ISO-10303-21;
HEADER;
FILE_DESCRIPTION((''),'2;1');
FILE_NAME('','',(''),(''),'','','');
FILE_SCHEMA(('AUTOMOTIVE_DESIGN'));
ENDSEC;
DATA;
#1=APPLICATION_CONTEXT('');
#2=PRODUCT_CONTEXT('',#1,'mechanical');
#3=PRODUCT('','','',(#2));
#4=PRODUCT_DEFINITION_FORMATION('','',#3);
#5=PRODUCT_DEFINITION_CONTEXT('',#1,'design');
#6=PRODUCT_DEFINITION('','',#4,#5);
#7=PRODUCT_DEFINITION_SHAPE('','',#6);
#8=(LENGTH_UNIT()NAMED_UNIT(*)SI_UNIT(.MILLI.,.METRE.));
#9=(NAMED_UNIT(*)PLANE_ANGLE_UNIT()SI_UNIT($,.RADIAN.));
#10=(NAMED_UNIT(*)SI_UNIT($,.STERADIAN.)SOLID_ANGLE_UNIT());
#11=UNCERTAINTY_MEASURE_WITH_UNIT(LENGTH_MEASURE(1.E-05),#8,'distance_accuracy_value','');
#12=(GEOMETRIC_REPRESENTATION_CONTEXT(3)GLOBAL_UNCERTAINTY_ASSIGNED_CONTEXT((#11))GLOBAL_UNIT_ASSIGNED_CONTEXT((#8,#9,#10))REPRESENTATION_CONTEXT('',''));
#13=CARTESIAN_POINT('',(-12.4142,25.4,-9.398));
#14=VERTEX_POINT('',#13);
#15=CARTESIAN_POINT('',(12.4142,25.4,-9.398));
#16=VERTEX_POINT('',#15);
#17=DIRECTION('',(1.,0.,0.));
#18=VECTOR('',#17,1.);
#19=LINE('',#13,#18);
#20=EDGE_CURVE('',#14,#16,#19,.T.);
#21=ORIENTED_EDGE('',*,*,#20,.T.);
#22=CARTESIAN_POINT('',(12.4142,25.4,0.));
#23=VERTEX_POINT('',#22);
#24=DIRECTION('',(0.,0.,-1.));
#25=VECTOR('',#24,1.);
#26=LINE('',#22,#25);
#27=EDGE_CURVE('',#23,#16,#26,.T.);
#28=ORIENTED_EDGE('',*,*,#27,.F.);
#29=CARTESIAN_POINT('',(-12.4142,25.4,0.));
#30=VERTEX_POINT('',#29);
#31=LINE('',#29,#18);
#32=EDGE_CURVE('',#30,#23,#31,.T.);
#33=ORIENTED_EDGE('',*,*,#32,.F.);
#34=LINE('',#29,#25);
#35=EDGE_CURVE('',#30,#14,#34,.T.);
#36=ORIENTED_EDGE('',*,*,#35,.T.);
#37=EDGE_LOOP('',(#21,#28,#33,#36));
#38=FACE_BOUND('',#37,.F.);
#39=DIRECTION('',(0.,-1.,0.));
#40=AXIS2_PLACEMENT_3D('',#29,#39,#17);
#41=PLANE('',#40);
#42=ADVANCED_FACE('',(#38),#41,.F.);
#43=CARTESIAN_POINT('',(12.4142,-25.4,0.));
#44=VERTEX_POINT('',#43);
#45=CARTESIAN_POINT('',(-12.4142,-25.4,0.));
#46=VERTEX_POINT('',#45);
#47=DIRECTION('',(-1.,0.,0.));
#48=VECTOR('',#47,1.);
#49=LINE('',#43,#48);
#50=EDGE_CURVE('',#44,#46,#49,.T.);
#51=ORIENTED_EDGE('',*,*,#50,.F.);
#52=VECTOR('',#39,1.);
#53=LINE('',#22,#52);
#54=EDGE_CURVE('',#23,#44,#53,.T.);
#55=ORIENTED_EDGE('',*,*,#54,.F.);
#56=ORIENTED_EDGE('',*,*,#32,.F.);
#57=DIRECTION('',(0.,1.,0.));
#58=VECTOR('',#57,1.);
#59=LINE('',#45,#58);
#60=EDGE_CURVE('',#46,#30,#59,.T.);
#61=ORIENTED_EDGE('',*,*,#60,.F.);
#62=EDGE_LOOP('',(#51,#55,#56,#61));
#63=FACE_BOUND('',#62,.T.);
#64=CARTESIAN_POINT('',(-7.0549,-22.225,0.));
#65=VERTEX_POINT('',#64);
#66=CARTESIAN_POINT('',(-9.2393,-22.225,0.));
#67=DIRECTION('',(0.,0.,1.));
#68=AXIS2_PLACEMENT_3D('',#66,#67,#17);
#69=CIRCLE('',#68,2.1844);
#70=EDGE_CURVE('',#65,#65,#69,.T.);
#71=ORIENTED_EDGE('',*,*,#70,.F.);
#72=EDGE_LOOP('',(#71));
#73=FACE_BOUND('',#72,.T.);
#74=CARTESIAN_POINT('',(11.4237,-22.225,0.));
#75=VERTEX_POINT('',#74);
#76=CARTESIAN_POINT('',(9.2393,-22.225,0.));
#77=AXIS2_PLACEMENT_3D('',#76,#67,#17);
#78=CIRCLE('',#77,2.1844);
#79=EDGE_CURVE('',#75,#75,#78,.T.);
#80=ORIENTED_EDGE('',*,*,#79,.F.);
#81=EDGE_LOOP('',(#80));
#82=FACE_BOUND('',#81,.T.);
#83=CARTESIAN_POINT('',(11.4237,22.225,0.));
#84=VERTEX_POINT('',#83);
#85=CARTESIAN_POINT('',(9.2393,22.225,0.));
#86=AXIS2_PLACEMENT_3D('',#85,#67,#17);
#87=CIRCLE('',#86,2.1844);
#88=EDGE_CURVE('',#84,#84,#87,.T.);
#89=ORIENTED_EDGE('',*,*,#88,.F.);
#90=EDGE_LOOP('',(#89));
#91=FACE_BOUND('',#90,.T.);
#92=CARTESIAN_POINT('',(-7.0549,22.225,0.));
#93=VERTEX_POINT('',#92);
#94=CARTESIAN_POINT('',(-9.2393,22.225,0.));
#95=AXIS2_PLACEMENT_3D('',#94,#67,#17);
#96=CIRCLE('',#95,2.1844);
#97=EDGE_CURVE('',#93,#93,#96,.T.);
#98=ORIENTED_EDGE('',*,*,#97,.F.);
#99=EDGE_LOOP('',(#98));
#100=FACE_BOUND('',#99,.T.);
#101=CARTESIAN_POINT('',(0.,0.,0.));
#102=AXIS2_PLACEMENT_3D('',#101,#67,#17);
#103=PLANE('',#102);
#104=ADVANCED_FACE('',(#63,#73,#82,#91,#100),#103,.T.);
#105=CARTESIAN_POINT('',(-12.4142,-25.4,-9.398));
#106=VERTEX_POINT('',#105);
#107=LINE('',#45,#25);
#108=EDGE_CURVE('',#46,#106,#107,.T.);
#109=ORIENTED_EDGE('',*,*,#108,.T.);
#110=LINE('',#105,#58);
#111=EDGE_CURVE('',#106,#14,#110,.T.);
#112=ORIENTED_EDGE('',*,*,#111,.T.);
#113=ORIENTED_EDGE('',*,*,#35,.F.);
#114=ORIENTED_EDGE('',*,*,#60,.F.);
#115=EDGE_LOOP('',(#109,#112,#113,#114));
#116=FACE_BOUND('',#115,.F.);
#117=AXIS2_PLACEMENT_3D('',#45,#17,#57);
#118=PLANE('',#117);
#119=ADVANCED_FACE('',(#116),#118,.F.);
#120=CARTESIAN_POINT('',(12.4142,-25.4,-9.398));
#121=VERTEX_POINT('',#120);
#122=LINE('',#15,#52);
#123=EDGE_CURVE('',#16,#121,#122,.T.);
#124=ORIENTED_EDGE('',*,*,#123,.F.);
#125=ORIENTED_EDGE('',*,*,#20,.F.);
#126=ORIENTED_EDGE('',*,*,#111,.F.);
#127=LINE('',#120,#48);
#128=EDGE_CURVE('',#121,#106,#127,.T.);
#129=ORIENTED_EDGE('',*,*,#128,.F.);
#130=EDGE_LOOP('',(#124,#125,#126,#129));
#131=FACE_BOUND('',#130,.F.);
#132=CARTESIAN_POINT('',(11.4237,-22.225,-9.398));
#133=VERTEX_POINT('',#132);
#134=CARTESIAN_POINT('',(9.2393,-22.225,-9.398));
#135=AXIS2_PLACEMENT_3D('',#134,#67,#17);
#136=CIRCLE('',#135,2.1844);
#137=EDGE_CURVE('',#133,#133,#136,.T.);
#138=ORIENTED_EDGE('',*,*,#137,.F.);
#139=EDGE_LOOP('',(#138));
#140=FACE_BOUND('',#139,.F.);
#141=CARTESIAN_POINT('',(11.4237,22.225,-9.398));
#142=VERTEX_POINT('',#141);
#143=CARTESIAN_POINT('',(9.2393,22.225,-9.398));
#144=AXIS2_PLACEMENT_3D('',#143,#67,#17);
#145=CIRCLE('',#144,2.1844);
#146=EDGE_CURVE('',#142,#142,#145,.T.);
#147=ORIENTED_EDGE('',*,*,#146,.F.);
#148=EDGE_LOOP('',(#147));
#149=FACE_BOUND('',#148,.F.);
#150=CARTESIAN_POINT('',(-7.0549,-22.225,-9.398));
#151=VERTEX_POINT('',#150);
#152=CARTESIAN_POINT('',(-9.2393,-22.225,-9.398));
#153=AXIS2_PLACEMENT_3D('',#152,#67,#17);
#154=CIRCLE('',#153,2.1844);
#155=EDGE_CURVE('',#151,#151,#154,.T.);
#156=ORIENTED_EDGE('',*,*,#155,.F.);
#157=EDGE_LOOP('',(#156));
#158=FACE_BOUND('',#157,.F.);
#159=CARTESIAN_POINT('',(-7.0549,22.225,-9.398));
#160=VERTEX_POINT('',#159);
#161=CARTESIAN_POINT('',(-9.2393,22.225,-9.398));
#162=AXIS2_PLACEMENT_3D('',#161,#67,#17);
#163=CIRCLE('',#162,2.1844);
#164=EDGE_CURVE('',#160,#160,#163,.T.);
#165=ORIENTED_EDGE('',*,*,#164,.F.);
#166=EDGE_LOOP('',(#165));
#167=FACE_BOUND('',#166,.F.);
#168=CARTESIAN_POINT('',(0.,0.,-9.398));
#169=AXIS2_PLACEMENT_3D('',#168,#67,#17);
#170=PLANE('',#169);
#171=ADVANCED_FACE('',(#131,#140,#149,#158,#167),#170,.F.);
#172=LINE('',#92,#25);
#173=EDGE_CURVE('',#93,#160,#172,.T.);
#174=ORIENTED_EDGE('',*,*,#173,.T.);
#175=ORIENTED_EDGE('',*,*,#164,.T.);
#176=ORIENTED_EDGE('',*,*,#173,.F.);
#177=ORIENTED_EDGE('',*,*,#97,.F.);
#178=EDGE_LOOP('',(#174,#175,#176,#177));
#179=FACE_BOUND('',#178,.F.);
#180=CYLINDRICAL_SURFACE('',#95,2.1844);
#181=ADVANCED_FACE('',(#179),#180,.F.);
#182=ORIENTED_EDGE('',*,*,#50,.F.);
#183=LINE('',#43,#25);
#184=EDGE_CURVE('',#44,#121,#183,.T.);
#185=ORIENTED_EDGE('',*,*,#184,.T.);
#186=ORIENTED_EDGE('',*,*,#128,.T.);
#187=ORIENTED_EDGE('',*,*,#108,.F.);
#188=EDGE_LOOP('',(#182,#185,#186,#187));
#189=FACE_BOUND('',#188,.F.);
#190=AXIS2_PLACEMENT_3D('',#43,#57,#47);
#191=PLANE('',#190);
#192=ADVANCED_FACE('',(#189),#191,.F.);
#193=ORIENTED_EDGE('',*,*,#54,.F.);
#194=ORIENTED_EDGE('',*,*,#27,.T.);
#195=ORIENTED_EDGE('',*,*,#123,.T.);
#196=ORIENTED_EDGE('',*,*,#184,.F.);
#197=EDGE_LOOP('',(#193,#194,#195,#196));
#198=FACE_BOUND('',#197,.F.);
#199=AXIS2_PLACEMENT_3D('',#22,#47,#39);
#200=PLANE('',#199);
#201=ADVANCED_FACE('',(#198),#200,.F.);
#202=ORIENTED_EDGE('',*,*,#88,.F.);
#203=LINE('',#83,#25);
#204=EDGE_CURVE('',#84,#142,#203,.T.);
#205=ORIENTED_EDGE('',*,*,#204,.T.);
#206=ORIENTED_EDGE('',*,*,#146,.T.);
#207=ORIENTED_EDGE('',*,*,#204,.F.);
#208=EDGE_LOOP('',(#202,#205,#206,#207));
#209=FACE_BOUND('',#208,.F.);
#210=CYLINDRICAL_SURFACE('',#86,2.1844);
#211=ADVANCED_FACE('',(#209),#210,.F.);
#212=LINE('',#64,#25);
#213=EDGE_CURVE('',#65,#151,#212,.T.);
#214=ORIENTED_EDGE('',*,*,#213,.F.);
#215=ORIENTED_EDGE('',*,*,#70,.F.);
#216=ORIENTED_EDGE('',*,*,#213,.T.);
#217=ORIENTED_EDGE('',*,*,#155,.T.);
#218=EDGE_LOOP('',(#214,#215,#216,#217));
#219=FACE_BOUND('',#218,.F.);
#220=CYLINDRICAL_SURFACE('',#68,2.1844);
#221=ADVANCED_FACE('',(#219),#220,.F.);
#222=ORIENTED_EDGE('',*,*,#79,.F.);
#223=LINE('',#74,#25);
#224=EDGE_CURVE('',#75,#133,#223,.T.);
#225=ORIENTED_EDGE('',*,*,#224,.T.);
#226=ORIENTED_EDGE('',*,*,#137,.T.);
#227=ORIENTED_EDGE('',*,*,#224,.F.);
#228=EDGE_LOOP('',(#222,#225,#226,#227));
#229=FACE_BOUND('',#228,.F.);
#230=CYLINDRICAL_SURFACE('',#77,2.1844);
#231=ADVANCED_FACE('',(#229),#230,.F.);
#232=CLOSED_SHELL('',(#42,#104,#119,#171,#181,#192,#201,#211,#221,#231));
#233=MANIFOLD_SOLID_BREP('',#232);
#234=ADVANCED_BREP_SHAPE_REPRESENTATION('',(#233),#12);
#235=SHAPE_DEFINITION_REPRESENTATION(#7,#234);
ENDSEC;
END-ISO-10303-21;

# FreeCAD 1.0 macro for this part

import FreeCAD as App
import Part
import Sketcher

V = App.Vector
Q = App.Units.Quantity


def add_polygon(sketch, points):
    """Adds a closed chain of lines whose ends are joined by coincident constraints."""
    first, n = sketch.GeometryCount, len(points)
    for a, b in zip(points, points[1:] + points[:1]):
        sketch.addGeometry(Part.LineSegment(App.Vector(*a, 0), App.Vector(*b, 0)), False)
    for i in range(n):
        sketch.addConstraint(Sketcher.Constraint("Coincident", first + i, 2, first + (i + 1) % n, 1))

doc = App.newDocument("Part")
body = doc.addObject("PartDesign::Body", "Body")

# Sketch on XY plane
sketch1 = body.newObject("Sketcher::SketchObject", "Sketch")
sketch1.AttachmentSupport = (doc.getObject("XY_Plane"), [""])
sketch1.MapMode = "FlatFace"
add_polygon(sketch1, [(12.4, 25.4), (-12.4, 25.4), (-12.4, -25.4), (12.4, -25.4)])  # lines 0-3
sketch1.addGeometry(Part.Circle(V(-9.2, -22.2, 0), V(0, 0, 1), 2.2), False)  # 4
sketch1.addGeometry(Part.Circle(V(9.2, -22.2, 0), V(0, 0, 1), 2.2), False)  # 5
sketch1.addGeometry(Part.Circle(V(-9.2, 22.2, 0), V(0, 0, 1), 2.2), False)  # 6
sketch1.addGeometry(Part.Circle(V(9.2, 22.2, 0), V(0, 0, 1), 2.2), False)  # 7
sketch1.addConstraint(Sketcher.Constraint("Horizontal", 0))
sketch1.addConstraint(Sketcher.Constraint("Vertical", 1))
sketch1.addConstraint(Sketcher.Constraint("Horizontal", 2))
sketch1.addConstraint(Sketcher.Constraint("Vertical", 3))
sketch1.addConstraint(Sketcher.Constraint("Equal", 4, 5))
sketch1.addConstraint(Sketcher.Constraint("Equal", 5, 6))
sketch1.addConstraint(Sketcher.Constraint("Equal", 6, 7))
sketch1.addConstraint(Sketcher.Constraint("Symmetric", 5, 3, 6, 3, -1, 1))
sketch1.addConstraint(Sketcher.Constraint("Symmetric", 4, 3, 7, 3, -1, 1))
sketch1.addConstraint(Sketcher.Constraint("Symmetric", 0, 2, 2, 2, -1, 1))
sketch1.addConstraint(Sketcher.Constraint("Symmetric", 4, 3, 5, 3, -2))
sketch1.addConstraint(Sketcher.Constraint("DistanceY", 1, 2, 1, 1, Q("2 in")))
sketch1.addConstraint(Sketcher.Constraint("Diameter", 4, Q("0.172 in")))
sketch1.addConstraint(Sketcher.Constraint("DistanceX", 0, 2, 0, 1, Q("0.9775 in")))
sketch1.addConstraint(Sketcher.Constraint("DistanceX", 0, 2, 6, 3, Q("0.125 in")))
sketch1.addConstraint(Sketcher.Constraint("DistanceY", 6, 3, 0, 2, Q("0.125 in")))
pad1 = body.newObject("PartDesign::Pad", "Pad")
pad1.Profile = sketch1
pad1.Length = Q("0.37 in")
pad1.Reversed = True

doc.recompute()
